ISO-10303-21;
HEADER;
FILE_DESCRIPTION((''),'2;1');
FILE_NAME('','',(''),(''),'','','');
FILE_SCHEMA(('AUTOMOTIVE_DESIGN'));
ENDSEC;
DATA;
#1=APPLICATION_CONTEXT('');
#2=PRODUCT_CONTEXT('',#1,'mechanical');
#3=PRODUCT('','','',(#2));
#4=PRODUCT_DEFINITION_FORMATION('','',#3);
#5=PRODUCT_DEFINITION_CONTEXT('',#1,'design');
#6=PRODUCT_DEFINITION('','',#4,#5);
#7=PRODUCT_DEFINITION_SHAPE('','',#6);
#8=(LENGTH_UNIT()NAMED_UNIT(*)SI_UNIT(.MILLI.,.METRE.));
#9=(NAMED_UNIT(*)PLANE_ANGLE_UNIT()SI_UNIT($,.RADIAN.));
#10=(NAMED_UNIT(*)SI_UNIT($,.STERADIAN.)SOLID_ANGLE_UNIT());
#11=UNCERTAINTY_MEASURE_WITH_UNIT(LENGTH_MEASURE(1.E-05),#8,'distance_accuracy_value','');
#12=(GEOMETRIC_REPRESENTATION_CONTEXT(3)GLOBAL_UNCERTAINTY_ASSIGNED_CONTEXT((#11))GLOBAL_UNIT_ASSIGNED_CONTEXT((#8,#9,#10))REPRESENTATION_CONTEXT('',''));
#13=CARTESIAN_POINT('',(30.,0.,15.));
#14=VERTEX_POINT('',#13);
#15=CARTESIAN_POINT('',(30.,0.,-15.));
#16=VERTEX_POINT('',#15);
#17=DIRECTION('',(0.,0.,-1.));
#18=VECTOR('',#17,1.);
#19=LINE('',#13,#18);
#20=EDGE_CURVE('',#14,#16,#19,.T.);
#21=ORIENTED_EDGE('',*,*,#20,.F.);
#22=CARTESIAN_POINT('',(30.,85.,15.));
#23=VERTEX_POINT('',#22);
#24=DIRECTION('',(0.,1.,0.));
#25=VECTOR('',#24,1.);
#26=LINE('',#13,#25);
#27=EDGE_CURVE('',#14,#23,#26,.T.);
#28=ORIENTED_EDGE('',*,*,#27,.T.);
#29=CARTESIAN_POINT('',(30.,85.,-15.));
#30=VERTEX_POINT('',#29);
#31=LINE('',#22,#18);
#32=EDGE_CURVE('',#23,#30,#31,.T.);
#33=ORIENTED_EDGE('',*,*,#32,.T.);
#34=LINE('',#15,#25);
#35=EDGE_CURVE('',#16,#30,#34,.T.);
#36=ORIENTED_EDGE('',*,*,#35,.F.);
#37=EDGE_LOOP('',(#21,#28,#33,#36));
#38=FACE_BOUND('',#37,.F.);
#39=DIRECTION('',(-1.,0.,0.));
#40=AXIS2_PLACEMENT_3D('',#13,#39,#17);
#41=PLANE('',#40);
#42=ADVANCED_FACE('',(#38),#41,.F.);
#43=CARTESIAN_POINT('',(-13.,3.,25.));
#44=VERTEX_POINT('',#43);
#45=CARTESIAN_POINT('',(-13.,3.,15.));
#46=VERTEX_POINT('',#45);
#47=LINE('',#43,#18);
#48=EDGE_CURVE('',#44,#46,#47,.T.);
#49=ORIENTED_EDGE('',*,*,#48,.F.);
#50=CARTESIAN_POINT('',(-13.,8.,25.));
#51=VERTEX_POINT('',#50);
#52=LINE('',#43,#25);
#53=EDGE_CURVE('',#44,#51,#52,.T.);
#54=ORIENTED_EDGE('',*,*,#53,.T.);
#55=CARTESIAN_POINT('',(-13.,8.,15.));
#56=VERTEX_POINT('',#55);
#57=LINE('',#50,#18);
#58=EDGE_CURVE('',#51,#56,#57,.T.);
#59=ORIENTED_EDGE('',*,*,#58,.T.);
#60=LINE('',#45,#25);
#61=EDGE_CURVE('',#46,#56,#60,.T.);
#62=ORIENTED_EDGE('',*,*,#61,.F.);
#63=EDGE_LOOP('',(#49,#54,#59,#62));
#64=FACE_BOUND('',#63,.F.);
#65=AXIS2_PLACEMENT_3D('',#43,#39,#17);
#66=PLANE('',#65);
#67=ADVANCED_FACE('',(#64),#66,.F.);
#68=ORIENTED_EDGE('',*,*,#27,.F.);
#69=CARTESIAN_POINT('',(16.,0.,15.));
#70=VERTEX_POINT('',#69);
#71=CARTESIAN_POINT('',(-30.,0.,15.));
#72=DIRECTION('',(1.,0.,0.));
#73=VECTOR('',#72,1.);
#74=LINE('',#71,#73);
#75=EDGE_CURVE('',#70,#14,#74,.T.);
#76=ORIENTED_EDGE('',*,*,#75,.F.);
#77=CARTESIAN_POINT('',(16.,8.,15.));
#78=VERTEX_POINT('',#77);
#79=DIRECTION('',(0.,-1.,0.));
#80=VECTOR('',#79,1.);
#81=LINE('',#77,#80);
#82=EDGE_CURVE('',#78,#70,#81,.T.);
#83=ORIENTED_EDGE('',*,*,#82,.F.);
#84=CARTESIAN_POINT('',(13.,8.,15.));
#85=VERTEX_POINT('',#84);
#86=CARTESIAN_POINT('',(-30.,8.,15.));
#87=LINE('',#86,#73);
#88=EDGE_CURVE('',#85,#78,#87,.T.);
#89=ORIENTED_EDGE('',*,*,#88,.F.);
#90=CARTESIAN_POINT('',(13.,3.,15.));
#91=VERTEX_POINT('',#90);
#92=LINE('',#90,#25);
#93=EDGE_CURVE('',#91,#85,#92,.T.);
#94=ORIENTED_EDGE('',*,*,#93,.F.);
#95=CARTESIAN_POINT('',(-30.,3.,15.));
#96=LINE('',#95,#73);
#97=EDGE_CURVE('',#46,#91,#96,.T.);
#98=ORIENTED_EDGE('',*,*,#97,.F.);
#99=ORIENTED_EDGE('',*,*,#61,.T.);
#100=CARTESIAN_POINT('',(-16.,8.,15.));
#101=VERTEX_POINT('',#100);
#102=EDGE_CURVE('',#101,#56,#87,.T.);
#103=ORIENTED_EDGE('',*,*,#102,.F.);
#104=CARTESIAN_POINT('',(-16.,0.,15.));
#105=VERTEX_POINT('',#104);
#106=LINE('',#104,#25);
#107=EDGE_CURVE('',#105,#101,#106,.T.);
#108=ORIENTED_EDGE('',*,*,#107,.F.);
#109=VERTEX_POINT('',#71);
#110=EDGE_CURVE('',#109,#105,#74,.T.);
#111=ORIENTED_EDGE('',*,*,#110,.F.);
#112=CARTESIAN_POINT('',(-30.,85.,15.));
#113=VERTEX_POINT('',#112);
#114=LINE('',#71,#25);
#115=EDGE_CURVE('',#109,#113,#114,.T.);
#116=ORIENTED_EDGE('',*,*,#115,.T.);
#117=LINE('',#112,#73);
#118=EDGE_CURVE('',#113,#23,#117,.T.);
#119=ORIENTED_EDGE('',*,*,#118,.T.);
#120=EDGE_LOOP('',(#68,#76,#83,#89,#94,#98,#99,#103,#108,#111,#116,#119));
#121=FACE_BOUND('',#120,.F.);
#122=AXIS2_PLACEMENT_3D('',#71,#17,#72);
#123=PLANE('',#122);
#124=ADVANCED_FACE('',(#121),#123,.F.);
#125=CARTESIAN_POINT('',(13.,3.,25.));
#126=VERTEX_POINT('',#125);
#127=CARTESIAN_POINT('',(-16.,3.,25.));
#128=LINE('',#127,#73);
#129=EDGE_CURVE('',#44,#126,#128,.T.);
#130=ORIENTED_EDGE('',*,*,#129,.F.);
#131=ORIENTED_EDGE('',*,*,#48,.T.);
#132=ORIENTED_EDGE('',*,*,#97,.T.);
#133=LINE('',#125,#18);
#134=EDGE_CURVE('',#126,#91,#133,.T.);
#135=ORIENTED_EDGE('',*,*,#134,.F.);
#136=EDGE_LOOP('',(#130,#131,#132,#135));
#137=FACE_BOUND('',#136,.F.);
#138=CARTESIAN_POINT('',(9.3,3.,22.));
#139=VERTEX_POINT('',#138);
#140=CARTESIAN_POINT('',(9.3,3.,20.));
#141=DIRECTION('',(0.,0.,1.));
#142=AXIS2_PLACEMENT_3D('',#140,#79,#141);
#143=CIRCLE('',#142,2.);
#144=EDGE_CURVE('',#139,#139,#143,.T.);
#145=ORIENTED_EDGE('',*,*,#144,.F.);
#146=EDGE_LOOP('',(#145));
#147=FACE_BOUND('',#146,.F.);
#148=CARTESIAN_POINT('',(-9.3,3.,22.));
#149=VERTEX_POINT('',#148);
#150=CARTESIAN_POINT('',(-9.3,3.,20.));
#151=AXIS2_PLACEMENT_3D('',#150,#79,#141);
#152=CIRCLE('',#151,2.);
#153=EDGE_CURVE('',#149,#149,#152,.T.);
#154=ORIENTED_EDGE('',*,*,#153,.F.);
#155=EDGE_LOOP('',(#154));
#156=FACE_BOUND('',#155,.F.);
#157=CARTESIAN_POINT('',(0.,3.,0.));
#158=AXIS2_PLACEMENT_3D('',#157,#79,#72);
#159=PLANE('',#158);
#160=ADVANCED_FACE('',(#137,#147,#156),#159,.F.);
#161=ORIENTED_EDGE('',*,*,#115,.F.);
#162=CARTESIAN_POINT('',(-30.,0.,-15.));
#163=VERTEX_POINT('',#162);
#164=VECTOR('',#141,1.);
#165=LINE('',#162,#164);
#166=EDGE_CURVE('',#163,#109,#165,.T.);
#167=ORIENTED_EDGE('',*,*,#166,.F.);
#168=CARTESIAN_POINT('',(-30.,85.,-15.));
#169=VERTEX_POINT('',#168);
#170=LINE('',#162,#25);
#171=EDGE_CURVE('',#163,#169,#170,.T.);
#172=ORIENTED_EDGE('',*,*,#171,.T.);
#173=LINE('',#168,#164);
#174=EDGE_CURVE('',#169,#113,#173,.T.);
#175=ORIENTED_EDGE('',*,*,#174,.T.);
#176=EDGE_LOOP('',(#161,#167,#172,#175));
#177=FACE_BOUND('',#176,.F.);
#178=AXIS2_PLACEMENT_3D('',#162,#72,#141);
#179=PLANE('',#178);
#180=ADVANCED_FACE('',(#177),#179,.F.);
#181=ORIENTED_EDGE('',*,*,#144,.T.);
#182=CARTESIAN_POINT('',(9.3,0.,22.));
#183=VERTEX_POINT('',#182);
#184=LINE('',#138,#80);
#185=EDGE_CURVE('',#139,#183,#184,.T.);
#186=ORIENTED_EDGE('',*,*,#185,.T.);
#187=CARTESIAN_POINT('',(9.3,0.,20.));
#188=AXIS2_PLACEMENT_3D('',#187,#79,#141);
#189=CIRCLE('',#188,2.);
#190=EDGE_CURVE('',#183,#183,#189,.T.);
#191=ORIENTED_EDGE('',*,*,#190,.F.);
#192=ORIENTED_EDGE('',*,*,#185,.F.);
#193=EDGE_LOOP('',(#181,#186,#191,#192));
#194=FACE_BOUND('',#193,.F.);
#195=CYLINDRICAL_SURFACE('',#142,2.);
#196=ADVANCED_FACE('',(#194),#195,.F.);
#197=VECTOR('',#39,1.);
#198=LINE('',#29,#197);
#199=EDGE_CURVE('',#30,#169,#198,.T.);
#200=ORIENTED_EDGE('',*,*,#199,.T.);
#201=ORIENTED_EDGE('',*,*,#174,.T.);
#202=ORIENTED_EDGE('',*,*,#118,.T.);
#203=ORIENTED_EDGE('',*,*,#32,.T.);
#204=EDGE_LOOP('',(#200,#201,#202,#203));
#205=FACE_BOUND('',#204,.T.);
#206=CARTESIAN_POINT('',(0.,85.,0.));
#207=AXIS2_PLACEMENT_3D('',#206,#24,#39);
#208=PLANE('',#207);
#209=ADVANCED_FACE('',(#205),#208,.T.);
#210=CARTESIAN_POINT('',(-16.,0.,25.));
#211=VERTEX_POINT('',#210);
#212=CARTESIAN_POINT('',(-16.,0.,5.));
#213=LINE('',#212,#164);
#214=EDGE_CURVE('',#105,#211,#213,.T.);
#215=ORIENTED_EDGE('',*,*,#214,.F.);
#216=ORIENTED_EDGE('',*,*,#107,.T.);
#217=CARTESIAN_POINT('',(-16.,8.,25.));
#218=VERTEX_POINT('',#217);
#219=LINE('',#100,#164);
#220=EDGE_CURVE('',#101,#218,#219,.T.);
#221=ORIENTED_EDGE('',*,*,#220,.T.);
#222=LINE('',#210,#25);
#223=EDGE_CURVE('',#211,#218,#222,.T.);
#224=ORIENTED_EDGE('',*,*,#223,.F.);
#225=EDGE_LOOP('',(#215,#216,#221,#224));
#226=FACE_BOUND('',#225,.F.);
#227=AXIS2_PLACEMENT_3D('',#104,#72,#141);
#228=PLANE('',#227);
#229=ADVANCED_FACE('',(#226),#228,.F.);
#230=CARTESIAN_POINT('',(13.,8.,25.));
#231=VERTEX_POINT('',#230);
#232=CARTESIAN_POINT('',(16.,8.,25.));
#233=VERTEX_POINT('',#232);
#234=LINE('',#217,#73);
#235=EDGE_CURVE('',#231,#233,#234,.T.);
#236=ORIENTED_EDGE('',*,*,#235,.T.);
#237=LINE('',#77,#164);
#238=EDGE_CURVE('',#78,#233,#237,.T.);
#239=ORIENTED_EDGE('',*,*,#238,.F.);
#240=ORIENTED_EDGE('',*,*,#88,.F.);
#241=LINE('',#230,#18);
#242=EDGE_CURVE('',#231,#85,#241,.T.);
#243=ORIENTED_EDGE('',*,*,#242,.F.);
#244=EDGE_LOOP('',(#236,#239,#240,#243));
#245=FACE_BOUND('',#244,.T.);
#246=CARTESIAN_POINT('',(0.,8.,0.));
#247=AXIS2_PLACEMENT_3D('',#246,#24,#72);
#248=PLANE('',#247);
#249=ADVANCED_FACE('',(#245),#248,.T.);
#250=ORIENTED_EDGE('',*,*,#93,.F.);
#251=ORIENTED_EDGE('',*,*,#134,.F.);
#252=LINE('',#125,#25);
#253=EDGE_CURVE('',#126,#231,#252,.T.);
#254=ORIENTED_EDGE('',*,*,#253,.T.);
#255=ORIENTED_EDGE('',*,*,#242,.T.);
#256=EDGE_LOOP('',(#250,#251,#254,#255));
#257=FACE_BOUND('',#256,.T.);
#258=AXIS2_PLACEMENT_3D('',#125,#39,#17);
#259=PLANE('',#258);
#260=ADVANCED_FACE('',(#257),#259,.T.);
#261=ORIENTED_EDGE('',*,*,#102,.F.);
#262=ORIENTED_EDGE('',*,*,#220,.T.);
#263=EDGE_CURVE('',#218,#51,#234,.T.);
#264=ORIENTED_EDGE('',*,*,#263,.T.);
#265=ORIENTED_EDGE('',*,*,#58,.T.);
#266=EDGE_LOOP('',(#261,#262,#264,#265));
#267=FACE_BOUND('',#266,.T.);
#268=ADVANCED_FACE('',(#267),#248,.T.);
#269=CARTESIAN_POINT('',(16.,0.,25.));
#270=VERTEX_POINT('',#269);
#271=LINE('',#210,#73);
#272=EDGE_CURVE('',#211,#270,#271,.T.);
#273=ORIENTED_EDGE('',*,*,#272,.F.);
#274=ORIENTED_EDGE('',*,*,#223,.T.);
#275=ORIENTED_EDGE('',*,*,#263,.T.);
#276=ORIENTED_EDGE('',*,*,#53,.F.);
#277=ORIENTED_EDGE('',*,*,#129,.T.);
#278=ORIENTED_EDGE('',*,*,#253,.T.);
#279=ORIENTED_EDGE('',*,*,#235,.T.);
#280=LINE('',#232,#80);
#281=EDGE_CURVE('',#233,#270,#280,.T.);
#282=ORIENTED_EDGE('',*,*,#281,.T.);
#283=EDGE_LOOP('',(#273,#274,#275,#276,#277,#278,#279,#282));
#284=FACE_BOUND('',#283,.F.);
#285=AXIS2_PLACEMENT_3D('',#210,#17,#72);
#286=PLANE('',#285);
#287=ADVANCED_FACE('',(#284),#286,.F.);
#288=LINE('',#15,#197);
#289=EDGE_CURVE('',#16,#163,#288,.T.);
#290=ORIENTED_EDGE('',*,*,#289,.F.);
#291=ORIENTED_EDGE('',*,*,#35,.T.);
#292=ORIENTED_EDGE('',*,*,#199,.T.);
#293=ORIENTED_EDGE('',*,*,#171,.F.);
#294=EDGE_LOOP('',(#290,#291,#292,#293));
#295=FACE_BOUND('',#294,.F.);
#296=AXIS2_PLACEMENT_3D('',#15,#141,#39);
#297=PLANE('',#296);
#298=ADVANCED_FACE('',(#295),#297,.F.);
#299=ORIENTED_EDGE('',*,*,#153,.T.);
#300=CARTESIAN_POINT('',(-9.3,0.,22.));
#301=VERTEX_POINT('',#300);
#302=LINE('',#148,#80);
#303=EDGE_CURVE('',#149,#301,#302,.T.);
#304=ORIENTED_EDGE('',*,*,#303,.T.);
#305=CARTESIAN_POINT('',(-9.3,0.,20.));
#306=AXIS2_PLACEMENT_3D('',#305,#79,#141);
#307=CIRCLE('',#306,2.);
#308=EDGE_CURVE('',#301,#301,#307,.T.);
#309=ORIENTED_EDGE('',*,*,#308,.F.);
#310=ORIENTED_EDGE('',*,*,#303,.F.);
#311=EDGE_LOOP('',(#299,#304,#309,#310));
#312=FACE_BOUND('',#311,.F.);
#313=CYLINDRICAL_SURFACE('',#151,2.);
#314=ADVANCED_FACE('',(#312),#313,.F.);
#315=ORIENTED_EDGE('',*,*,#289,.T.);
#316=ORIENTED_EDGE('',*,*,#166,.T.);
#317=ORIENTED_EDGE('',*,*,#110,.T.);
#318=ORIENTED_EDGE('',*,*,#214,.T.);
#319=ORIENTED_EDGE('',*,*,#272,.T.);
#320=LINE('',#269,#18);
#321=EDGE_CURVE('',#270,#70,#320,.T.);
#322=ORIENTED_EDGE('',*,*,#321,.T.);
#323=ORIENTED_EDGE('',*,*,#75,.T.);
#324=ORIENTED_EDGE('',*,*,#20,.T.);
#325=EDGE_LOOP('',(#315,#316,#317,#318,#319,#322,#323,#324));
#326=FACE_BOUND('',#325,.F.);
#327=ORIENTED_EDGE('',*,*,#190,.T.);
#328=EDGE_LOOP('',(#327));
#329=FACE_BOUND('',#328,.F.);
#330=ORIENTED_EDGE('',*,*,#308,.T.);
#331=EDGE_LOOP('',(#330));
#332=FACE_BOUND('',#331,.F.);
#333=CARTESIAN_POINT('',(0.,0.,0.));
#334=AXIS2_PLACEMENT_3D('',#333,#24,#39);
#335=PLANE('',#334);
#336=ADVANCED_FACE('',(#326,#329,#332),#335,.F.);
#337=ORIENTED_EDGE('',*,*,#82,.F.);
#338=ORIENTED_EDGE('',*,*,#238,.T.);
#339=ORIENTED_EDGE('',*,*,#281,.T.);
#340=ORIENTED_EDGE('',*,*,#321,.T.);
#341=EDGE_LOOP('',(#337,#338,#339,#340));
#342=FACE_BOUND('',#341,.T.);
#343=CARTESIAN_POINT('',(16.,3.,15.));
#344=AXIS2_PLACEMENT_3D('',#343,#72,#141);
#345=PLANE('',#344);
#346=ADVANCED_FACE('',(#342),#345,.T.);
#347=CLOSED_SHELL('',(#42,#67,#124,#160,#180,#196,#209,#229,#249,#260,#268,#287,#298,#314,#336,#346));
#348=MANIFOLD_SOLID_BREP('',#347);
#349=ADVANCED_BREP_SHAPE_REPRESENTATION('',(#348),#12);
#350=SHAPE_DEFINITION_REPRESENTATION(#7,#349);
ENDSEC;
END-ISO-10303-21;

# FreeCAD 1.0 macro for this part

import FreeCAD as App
import Part
import Sketcher
Q = App.Units.Quantity


def add_polygon(sketch, points):
    """Adds a closed chain of lines whose ends are joined by coincident constraints."""
    first, n = sketch.GeometryCount, len(points)
    for a, b in zip(points, points[1:] + points[:1]):
        sketch.addGeometry(Part.LineSegment(App.Vector(*a, 0), App.Vector(*b, 0)), False)
    for i in range(n):
        sketch.addConstraint(Sketcher.Constraint("Coincident", first + i, 2, first + (i + 1) % n, 1))

doc = App.newDocument("Part")
body = doc.addObject("PartDesign::Body", "Body")

# Sketch on XZ plane
sketch1 = body.newObject("Sketcher::SketchObject", "Sketch")
sketch1.AttachmentSupport = (doc.getObject("XZ_Plane"), [""])
sketch1.MapMode = "FlatFace"
add_polygon(sketch1, [(-30, -15), (-30, 15), (30, 15), (30, -15)])  # lines 0-3
sketch1.addConstraint([
    Sketcher.Constraint("Vertical", 0),
    Sketcher.Constraint("Horizontal", 1),
    Sketcher.Constraint("Vertical", 2),
    Sketcher.Constraint("Horizontal", 3),
    Sketcher.Constraint("Symmetric", 0, 2, 2, 2, -1, 1),
    Sketcher.Constraint("DistanceX", 1, 1, 1, 2, Q("60 mm")),
    Sketcher.Constraint("DistanceY", 0, 1, 0, 2, Q("30 mm")),
])
pad1 = body.newObject("PartDesign::Pad", "Pad")
pad1.Profile = sketch1
pad1.Length = 85
pad1.Reversed = True

# Sketch on XZ plane
sketch2 = body.newObject("Sketcher::SketchObject", "Sketch001")
sketch2.AttachmentSupport = (doc.getObject("XZ_Plane"), [""])
sketch2.MapMode = "FlatFace"
add_polygon(sketch2, [(-16, 15), (16, 15), (16, 25), (-16, 25)])  # lines 0-3
sketch2.addConstraint([
    Sketcher.Constraint("Horizontal", 0),
    Sketcher.Constraint("Vertical", 1),
    Sketcher.Constraint("Horizontal", 2),
    Sketcher.Constraint("Vertical", 3),
    Sketcher.Constraint("DistanceX", 0, 1, 0, 2, Q("32 mm")),
    Sketcher.Constraint("DistanceY", 1, 1, 1, 2, Q("10 mm")),
    Sketcher.Constraint("DistanceX", -1, 1, 0, 2, Q("16 mm")),
    Sketcher.Constraint("DistanceY", -1, 1, 0, 2, Q("15 mm")),
])
pad2 = body.newObject("PartDesign::Pad", "Pad001")
pad2.Profile = sketch2
pad2.Length = 3
pad2.Reversed = True

# Sketch on XZ plane
sketch3 = body.newObject("Sketcher::SketchObject", "Sketch002")
sketch3.AttachmentSupport = (doc.getObject("XZ_Plane"), [""])
sketch3.MapMode = "FlatFace"
sketch3.AttachmentOffset = App.Placement(App.Vector(0, 0, -3), App.Rotation())
add_polygon(sketch3, [(-16, 15), (-16, 25), (-13, 25), (-13, 15)])  # lines 0-3
add_polygon(sketch3, [(13, 15), (13, 25), (16, 25), (16, 15)])  # lines 4-7
sketch3.addConstraint([
    Sketcher.Constraint("Vertical", 0),
    Sketcher.Constraint("Horizontal", 1),
    Sketcher.Constraint("Vertical", 2),
    Sketcher.Constraint("Horizontal", 3),
    Sketcher.Constraint("Vertical", 4),
    Sketcher.Constraint("Horizontal", 5),
    Sketcher.Constraint("Vertical", 6),
    Sketcher.Constraint("Horizontal", 7),
    Sketcher.Constraint("Symmetric", 1, 2, 4, 2, -2),
    Sketcher.Constraint("Symmetric", 3, 2, 6, 2, -2),
    Sketcher.Constraint("DistanceX", 1, 1, 1, 2, Q("3 mm")),
    Sketcher.Constraint("DistanceY", 0, 1, 0, 2, Q("10 mm")),
    Sketcher.Constraint("DistanceX", 0, 2, -1, 1, Q("16 mm")),
    Sketcher.Constraint("DistanceY", -1, 1, 0, 2, Q("25 mm")),
])
pad3 = body.newObject("PartDesign::Pad", "Pad002")
pad3.Profile = sketch3
pad3.Length = 5
pad3.Reversed = True

# Sketch on XZ plane
sketch4 = body.newObject("Sketcher::SketchObject", "Sketch003")
sketch4.AttachmentSupport = (doc.getObject("XZ_Plane"), [""])
sketch4.MapMode = "FlatFace"
sketch4.AttachmentOffset = App.Placement(App.Vector(0, 0, -3), App.Rotation())
sketch4.addGeometry([
    Part.Circle(App.Vector(9.3, 20, 0), App.Vector(0, 0, 1), 2),
    Part.Circle(App.Vector(-9.3, 20, 0), App.Vector(0, 0, 1), 2),
], False)
sketch4.addConstraint([
    Sketcher.Constraint("Equal", 0, 1),
    Sketcher.Constraint("Symmetric", 0, 3, 1, 3, -2),
    Sketcher.Constraint("Diameter", 0, Q("4 mm")),
    Sketcher.Constraint("DistanceY", -1, 1, 0, 3, Q("20 mm")),
    Sketcher.Constraint("DistanceX", -1, 1, 0, 3, Q("9.3 mm")),
])
doc.recompute()
hole = body.newObject("PartDesign::Hole", "Hole")
hole.Profile = sketch4
hole.ThreadType = "None"
hole.Diameter = 4
hole.DepthType = "ThroughAll"
hole.Reversed = True

doc.recompute()
